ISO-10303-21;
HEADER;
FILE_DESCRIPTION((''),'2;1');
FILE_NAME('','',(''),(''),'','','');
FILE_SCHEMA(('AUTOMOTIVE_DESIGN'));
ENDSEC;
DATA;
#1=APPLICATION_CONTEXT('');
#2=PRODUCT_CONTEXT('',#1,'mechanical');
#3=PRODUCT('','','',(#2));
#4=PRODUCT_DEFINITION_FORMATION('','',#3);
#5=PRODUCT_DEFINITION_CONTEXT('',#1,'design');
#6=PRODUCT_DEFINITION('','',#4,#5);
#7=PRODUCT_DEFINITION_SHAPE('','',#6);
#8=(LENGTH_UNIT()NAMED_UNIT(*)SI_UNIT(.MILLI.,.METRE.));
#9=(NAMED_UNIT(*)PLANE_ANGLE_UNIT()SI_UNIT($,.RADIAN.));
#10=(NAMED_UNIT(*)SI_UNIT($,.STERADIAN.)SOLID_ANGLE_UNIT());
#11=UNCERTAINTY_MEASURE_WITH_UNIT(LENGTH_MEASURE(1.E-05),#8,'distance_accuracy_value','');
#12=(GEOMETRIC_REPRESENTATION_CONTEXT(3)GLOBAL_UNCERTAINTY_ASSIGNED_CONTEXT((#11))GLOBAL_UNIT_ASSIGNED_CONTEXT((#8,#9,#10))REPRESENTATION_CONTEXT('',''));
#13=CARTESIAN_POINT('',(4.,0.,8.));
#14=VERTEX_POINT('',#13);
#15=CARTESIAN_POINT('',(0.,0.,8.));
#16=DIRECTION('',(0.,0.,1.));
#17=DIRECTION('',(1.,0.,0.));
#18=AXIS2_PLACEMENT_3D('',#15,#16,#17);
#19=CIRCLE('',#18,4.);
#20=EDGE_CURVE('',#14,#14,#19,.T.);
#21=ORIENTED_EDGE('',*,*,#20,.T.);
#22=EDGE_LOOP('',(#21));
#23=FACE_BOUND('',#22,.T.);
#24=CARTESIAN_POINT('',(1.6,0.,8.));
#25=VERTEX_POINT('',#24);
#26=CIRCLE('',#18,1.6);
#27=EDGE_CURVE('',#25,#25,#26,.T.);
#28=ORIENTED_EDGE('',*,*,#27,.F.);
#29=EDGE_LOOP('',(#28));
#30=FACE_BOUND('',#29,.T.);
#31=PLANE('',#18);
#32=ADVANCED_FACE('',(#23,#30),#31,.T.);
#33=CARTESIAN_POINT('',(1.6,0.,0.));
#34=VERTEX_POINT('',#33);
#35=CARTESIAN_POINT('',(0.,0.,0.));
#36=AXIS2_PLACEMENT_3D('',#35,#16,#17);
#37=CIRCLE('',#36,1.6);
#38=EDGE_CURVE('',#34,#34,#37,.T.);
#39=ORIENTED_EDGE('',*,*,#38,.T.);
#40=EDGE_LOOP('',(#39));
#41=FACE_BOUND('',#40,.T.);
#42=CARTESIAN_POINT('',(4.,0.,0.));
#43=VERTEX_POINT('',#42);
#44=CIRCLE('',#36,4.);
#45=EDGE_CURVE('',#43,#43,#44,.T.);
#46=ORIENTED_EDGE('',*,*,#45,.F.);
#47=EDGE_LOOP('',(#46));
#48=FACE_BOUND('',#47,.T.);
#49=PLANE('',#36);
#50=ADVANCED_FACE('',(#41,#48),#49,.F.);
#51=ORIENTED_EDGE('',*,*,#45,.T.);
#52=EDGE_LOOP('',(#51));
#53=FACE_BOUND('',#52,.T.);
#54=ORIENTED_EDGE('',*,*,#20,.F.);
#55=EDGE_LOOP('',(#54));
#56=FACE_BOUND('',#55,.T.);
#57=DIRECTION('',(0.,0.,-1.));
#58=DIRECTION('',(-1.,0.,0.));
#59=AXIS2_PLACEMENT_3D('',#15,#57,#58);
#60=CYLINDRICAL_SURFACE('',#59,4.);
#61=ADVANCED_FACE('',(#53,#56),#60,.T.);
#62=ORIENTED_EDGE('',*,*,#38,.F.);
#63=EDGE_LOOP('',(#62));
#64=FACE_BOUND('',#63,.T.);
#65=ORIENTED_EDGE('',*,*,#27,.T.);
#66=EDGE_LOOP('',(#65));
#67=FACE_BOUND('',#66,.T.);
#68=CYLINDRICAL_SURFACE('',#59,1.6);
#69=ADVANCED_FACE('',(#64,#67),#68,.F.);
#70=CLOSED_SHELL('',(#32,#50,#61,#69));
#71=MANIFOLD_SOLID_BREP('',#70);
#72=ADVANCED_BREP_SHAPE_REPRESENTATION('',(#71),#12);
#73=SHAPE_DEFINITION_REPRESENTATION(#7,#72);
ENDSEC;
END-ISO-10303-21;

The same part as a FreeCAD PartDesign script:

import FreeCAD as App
import Part
import Sketcher

V = App.Vector

doc = App.newDocument("Part")
body = doc.addObject("PartDesign::Body", "Body")

# Sketch on XY plane
sketch1 = body.newObject("Sketcher::SketchObject", "Sketch")
sketch1.AttachmentSupport = (doc.getObject("XY_Plane"), [""])
sketch1.MapMode = "FlatFace"
sketch1.addGeometry(Part.Circle(V(0, 0, 0), V(0, 0, 1), 4), False)
sketch1.addGeometry(Part.Circle(V(0, 0, 0), V(0, 0, 1), 1.6), False)
sketch1.addConstraint(Sketcher.Constraint("Coincident", 0, 3, -1, 1))
sketch1.addConstraint(Sketcher.Constraint("Coincident", 1, 3, -1, 1))
sketch1.addConstraint(Sketcher.Constraint("Diameter", 0, 8.0))
sketch1.addConstraint(Sketcher.Constraint("Diameter", 1, 3.2))
pad1 = body.newObject("PartDesign::Pad", "Pad")
pad1.Profile = sketch1
pad1.Length = 8

doc.recompute()
